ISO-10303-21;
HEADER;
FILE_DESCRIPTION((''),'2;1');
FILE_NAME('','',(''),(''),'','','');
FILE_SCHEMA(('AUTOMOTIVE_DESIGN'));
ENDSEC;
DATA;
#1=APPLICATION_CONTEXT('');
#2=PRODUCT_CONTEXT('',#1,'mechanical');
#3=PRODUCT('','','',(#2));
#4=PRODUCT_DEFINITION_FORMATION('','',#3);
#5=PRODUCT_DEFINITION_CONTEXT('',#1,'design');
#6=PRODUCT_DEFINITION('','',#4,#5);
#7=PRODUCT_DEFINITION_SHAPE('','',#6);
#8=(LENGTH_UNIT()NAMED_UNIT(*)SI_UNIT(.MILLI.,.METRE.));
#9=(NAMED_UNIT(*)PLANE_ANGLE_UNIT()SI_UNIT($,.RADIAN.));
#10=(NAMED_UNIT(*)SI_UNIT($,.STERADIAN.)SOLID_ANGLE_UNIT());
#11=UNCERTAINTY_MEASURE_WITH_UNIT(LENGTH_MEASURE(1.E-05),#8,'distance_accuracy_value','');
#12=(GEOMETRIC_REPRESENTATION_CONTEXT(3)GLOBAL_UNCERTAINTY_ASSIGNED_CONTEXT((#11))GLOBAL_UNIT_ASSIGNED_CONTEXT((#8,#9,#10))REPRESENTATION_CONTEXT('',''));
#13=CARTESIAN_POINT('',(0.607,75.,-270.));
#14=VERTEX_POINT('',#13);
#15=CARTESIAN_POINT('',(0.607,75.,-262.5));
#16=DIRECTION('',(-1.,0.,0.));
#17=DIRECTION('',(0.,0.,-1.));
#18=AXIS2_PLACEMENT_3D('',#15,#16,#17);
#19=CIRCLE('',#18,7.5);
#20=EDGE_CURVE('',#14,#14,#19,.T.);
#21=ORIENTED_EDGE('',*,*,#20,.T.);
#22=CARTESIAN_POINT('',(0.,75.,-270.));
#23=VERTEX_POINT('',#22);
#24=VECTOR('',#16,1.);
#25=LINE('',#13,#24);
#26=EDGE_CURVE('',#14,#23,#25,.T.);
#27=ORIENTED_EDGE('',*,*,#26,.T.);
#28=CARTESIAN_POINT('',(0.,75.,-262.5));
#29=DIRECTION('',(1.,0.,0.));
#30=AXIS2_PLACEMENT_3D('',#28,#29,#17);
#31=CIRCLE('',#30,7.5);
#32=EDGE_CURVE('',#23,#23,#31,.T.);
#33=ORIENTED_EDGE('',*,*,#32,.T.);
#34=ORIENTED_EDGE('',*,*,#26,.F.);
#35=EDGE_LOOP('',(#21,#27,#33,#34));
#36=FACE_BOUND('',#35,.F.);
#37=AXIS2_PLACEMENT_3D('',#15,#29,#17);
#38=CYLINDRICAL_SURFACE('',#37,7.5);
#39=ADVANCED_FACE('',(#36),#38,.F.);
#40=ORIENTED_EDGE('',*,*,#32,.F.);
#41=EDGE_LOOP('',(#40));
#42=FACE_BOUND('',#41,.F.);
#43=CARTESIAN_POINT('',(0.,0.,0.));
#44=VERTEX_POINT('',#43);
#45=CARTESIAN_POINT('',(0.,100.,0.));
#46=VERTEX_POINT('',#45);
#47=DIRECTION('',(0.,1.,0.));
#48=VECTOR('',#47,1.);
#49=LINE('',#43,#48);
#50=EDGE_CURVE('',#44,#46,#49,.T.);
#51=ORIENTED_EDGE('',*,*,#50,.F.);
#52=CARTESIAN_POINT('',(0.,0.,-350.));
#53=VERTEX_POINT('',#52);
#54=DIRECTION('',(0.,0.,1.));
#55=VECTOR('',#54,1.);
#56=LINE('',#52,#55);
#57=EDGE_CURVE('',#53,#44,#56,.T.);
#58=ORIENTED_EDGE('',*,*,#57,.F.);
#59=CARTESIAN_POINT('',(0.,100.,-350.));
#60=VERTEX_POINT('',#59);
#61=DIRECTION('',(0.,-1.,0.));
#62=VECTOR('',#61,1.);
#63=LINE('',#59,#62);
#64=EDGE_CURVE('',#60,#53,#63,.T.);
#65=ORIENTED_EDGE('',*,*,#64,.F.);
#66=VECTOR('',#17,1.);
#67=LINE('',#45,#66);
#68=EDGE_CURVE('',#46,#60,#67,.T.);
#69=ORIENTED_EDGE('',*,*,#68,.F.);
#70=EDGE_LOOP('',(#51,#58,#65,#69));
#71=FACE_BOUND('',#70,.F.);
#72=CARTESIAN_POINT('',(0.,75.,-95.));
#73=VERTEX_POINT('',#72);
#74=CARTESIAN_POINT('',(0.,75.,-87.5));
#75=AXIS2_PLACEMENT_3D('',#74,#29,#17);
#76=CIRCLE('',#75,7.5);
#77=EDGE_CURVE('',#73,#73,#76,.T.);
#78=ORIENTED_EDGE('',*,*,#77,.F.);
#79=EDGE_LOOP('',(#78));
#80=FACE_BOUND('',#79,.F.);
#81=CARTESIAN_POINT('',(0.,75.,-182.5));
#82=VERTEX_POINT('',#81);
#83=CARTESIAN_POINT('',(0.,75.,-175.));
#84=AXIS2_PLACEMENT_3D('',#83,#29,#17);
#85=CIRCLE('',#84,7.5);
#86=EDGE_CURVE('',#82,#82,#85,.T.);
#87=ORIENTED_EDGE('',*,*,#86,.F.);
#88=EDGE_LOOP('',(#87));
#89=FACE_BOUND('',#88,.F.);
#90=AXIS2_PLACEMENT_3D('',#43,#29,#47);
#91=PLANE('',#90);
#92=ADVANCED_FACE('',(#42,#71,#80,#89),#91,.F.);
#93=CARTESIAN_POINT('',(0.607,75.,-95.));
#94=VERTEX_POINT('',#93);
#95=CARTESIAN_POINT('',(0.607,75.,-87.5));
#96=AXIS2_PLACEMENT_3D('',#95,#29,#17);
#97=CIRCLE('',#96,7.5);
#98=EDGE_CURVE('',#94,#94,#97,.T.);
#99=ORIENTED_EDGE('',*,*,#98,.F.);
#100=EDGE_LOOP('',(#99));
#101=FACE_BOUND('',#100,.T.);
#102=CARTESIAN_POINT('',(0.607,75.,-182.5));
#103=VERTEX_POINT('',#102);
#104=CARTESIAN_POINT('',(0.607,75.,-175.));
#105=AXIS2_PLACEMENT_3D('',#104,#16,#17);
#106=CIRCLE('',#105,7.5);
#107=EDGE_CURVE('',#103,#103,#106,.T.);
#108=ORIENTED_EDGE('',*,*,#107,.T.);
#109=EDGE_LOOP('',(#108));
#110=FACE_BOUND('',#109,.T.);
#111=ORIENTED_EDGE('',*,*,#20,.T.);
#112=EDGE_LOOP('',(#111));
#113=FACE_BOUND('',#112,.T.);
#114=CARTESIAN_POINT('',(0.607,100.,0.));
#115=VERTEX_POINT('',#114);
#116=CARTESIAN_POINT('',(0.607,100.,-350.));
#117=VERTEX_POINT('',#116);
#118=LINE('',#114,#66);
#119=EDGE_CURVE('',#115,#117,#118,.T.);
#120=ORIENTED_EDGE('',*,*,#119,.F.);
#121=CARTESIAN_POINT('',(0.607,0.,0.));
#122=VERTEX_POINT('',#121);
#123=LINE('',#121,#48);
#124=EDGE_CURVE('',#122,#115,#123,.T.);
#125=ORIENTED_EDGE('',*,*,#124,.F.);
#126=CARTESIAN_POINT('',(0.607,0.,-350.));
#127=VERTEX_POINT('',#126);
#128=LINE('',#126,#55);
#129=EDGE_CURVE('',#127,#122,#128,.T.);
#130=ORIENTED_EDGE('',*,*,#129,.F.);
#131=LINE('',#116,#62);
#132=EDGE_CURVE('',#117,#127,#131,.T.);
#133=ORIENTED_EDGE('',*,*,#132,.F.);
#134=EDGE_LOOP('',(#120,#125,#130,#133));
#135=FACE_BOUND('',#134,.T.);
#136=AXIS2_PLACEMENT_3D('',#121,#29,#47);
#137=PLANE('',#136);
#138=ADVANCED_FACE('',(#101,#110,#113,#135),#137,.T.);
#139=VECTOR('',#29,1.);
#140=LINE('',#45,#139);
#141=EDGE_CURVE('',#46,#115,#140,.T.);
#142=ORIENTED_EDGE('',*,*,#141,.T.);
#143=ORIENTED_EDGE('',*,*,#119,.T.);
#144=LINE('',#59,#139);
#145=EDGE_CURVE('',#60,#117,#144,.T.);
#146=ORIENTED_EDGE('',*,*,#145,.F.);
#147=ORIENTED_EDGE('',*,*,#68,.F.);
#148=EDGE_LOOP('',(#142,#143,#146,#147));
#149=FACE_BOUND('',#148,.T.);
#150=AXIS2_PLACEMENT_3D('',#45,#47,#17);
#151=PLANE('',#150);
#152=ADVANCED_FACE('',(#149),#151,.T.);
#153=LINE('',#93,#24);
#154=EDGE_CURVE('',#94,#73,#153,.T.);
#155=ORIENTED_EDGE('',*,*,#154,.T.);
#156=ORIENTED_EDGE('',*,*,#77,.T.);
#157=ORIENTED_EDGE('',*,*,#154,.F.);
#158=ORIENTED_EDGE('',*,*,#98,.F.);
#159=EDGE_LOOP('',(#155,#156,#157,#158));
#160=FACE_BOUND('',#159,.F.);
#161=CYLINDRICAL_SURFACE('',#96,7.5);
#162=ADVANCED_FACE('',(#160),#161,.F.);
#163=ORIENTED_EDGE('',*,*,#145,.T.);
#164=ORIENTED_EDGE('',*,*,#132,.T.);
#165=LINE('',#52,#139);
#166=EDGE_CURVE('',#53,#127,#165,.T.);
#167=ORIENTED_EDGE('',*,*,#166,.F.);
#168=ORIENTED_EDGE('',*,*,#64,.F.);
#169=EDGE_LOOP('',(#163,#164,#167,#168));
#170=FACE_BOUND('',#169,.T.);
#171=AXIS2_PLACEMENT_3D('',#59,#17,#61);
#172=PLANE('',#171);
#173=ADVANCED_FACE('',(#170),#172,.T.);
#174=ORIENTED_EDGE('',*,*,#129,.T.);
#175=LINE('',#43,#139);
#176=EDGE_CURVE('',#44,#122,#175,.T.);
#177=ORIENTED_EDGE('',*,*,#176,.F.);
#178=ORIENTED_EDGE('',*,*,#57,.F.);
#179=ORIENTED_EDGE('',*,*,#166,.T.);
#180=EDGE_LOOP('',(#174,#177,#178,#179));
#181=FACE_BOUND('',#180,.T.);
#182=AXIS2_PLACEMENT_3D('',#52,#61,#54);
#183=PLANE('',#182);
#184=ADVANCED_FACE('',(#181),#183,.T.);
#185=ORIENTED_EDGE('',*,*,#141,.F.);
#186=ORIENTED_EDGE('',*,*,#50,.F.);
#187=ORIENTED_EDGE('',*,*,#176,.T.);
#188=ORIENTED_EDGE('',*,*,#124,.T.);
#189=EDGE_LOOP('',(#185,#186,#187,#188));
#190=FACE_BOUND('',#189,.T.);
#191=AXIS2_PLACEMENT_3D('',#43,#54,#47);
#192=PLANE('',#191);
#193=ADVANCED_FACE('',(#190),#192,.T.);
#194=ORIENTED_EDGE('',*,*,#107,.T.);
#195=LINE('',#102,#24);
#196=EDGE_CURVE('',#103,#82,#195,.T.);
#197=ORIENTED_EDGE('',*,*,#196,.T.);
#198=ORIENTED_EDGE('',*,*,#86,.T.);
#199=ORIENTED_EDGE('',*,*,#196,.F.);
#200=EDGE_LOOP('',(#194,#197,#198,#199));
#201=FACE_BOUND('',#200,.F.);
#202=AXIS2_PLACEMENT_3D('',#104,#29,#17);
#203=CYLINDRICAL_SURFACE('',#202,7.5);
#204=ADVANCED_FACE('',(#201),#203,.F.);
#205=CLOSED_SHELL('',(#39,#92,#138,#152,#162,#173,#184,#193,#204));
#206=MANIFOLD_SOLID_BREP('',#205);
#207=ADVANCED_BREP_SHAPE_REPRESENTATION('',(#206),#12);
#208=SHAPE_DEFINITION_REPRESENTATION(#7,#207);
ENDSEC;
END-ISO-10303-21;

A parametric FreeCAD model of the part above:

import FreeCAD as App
import Part
import Sketcher
Q = App.Units.Quantity


def add_polygon(sketch, points):
    """Adds a closed chain of lines whose ends are joined by coincident constraints."""
    first, n = sketch.GeometryCount, len(points)
    for a, b in zip(points, points[1:] + points[:1]):
        sketch.addGeometry(Part.LineSegment(App.Vector(*a, 0), App.Vector(*b, 0)), False)
    for i in range(n):
        sketch.addConstraint(Sketcher.Constraint("Coincident", first + i, 2, first + (i + 1) % n, 1))

doc = App.newDocument("Part")
body = doc.addObject("PartDesign::Body", "Body")

# Sketch on YZ plane
sketch1 = doc.addObject("Sketcher::SketchObject", "Sketch")
body.addObject(sketch1)
sketch1.AttachmentSupport = (doc.YZ_Plane, [""])
sketch1.MapMode = "FlatFace"
add_polygon(sketch1, [(100, 0), (0, 0), (0, -350), (100, -350)])  # lines 0-3
sketch1.addConstraint([
    Sketcher.Constraint("Horizontal", 0),
    Sketcher.Constraint("Vertical", 1),
    Sketcher.Constraint("Horizontal", 2),
    Sketcher.Constraint("Vertical", 3),
    Sketcher.Constraint("Coincident", 0, 2, -1, 1),
    Sketcher.Constraint("DistanceX", 0, 2, 0, 1, Q("100 mm")),
    Sketcher.Constraint("DistanceY", 1, 2, 1, 1, Q("350 mm")),
])
pad1 = doc.addObject("PartDesign::Pad", "Pad")
body.addObject(pad1)
pad1.Profile = sketch1
pad1.Length = 0.607

# Sketch on YZ plane
sketch2 = doc.addObject("Sketcher::SketchObject", "Sketch001")
body.addObject(sketch2)
sketch2.AttachmentSupport = (doc.YZ_Plane, [""])
sketch2.MapMode = "FlatFace"
sketch2.AttachmentOffset = App.Placement(App.Vector(0, 0, 0.607), App.Rotation())
sketch2.addGeometry([
    Part.Circle(App.Vector(75, -175, 0), App.Vector(0, 0, 1), 8),
    Part.Circle(App.Vector(75, -262, 0), App.Vector(0, 0, 1), 8),
    Part.Circle(App.Vector(75, -88, 0), App.Vector(0, 0, 1), 8),
], False)
sketch2.addConstraint([
    Sketcher.Constraint("Equal", 0, 1),
    Sketcher.Constraint("Equal", 1, 2),
    Sketcher.Constraint("Vertical", 0, 3, 1, 3),
    Sketcher.Constraint("Vertical", 1, 3, 2, 3),
    Sketcher.Constraint("Diameter", 0, Q("15 mm")),
    Sketcher.Constraint("DistanceY", 0, 3, -1, 1, Q("175 mm")),
    Sketcher.Constraint("DistanceY", 1, 3, 2, 3, Q("175 mm")),
    Sketcher.Constraint("DistanceY", 2, 3, -1, 1, Q("87.5 mm")),
    Sketcher.Constraint("DistanceX", -1, 1, 0, 3, Q("75 mm")),
])
pocket1 = doc.addObject("PartDesign::Pocket", "Pocket")
body.addObject(pocket1)
pocket1.Profile = sketch2
pocket1.Type = "ThroughAll"

doc.recompute()
